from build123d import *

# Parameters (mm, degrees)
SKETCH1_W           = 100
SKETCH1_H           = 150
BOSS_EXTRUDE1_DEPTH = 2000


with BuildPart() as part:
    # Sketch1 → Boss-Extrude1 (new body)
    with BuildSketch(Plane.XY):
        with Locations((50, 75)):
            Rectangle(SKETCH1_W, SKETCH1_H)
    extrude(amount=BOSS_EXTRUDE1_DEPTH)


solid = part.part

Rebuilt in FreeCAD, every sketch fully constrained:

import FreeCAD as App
import Part
import Sketcher
Q = App.Units.Quantity

doc = App.newDocument("Part")
body = doc.addObject("PartDesign::Body", "Body")

# Sketch on XY plane
sketch1 = body.newObject("Sketcher::SketchObject", "Sketch")
sketch1.AttachmentSupport = (doc.getObject("XY_Plane"), [""])
sketch1.MapMode = "FlatFace"
sketch1.addGeometry([
    Part.LineSegment(App.Vector(0, 150, 0), App.Vector(0, 0, 0)),
    Part.LineSegment(App.Vector(0, 0, 0), App.Vector(100, 0, 0)),
    Part.LineSegment(App.Vector(100, 0, 0), App.Vector(100, 150, 0)),
    Part.LineSegment(App.Vector(100, 150, 0), App.Vector(0, 150, 0)),
], False)
sketch1.addConstraint([
    Sketcher.Constraint("Coincident", 0, 2, 1, 1),
    Sketcher.Constraint("Coincident", 1, 2, 2, 1),
    Sketcher.Constraint("Coincident", 2, 2, 3, 1),
    Sketcher.Constraint("Coincident", 3, 2, 0, 1),
    Sketcher.Constraint("Vertical", 0),
    Sketcher.Constraint("Horizontal", 1),
    Sketcher.Constraint("Vertical", 2),
    Sketcher.Constraint("Horizontal", 3),
    Sketcher.Constraint("Coincident", 0, 2, -1, 1),
    Sketcher.Constraint("DistanceX", 1, 1, 1, 2, Q("100 mm")),
    Sketcher.Constraint("DistanceY", 0, 2, 0, 1, Q("150 mm")),
])
pad1 = body.newObject("PartDesign::Pad", "Pad")
pad1.Profile = sketch1
pad1.Length = 2000

doc.recompute()
